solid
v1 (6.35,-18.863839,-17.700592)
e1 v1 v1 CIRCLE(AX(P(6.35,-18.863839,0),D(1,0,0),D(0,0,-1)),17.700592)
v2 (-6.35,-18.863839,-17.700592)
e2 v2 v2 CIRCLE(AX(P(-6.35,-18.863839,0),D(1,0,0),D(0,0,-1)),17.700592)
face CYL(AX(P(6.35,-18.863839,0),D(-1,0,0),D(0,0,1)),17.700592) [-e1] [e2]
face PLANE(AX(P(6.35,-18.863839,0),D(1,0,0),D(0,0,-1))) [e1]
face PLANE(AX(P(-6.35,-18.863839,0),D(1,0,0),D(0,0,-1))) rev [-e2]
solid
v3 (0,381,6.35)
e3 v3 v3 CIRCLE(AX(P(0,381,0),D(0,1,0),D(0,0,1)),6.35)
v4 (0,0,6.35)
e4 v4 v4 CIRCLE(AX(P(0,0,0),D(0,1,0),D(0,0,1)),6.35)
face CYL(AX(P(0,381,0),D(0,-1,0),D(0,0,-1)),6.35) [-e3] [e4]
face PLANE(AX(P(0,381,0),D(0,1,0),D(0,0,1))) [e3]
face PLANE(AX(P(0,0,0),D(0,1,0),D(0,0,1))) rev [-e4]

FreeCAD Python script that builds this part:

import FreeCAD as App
import Part
import Sketcher
from FreeCAD import Vector
Q = App.Units.Quantity

doc = App.newDocument("Part")
body = doc.addObject("PartDesign::Body", "Body")

sketch1 = body.newObject("Sketcher::SketchObject", "Sketch")
sketch1.AttachmentSupport = (doc.getObject("XZ_Plane"), [""])
sketch1.MapMode = "FlatFace"
sketch1.addGeometry(Part.Circle(Vector(0, 0, 0), Vector(0, 0, 1), 6), False)
sketch1.addConstraint([
    Sketcher.Constraint("Coincident", 0, 3, -1, 1),
    Sketcher.Constraint("Diameter", 0, Q("0.5 in")),
])
pad1 = body.newObject("PartDesign::Pad", "Pad")
pad1.Profile = sketch1
pad1.Length = Q("15 in")
pad1.Reversed = True
body2 = doc.addObject("PartDesign::Body", "Body001")

sketch2 = body2.newObject("Sketcher::SketchObject", "Sketch001")
sketch2.AttachmentSupport = (doc.getObject("YZ_Plane001"), [""])
sketch2.MapMode = "FlatFace"
sketch2.addGeometry(Part.Circle(Vector(-19, 0, 0), Vector(0, 0, 1), 18), False)
sketch2.addConstraint([
    Sketcher.Constraint("PointOnObject", 0, 3, -1),
    Sketcher.Constraint("Diameter", 0, Q("35.401184 mm")),
    Sketcher.Constraint("DistanceX", 0, 3, -1, 1, Q("18.863839 mm")),
])
pad2 = body2.newObject("PartDesign::Pad", "Pad001")
pad2.Profile = sketch2
pad2.Length = Q("0.5 in")
pad2.Midplane = True

doc.recompute()
